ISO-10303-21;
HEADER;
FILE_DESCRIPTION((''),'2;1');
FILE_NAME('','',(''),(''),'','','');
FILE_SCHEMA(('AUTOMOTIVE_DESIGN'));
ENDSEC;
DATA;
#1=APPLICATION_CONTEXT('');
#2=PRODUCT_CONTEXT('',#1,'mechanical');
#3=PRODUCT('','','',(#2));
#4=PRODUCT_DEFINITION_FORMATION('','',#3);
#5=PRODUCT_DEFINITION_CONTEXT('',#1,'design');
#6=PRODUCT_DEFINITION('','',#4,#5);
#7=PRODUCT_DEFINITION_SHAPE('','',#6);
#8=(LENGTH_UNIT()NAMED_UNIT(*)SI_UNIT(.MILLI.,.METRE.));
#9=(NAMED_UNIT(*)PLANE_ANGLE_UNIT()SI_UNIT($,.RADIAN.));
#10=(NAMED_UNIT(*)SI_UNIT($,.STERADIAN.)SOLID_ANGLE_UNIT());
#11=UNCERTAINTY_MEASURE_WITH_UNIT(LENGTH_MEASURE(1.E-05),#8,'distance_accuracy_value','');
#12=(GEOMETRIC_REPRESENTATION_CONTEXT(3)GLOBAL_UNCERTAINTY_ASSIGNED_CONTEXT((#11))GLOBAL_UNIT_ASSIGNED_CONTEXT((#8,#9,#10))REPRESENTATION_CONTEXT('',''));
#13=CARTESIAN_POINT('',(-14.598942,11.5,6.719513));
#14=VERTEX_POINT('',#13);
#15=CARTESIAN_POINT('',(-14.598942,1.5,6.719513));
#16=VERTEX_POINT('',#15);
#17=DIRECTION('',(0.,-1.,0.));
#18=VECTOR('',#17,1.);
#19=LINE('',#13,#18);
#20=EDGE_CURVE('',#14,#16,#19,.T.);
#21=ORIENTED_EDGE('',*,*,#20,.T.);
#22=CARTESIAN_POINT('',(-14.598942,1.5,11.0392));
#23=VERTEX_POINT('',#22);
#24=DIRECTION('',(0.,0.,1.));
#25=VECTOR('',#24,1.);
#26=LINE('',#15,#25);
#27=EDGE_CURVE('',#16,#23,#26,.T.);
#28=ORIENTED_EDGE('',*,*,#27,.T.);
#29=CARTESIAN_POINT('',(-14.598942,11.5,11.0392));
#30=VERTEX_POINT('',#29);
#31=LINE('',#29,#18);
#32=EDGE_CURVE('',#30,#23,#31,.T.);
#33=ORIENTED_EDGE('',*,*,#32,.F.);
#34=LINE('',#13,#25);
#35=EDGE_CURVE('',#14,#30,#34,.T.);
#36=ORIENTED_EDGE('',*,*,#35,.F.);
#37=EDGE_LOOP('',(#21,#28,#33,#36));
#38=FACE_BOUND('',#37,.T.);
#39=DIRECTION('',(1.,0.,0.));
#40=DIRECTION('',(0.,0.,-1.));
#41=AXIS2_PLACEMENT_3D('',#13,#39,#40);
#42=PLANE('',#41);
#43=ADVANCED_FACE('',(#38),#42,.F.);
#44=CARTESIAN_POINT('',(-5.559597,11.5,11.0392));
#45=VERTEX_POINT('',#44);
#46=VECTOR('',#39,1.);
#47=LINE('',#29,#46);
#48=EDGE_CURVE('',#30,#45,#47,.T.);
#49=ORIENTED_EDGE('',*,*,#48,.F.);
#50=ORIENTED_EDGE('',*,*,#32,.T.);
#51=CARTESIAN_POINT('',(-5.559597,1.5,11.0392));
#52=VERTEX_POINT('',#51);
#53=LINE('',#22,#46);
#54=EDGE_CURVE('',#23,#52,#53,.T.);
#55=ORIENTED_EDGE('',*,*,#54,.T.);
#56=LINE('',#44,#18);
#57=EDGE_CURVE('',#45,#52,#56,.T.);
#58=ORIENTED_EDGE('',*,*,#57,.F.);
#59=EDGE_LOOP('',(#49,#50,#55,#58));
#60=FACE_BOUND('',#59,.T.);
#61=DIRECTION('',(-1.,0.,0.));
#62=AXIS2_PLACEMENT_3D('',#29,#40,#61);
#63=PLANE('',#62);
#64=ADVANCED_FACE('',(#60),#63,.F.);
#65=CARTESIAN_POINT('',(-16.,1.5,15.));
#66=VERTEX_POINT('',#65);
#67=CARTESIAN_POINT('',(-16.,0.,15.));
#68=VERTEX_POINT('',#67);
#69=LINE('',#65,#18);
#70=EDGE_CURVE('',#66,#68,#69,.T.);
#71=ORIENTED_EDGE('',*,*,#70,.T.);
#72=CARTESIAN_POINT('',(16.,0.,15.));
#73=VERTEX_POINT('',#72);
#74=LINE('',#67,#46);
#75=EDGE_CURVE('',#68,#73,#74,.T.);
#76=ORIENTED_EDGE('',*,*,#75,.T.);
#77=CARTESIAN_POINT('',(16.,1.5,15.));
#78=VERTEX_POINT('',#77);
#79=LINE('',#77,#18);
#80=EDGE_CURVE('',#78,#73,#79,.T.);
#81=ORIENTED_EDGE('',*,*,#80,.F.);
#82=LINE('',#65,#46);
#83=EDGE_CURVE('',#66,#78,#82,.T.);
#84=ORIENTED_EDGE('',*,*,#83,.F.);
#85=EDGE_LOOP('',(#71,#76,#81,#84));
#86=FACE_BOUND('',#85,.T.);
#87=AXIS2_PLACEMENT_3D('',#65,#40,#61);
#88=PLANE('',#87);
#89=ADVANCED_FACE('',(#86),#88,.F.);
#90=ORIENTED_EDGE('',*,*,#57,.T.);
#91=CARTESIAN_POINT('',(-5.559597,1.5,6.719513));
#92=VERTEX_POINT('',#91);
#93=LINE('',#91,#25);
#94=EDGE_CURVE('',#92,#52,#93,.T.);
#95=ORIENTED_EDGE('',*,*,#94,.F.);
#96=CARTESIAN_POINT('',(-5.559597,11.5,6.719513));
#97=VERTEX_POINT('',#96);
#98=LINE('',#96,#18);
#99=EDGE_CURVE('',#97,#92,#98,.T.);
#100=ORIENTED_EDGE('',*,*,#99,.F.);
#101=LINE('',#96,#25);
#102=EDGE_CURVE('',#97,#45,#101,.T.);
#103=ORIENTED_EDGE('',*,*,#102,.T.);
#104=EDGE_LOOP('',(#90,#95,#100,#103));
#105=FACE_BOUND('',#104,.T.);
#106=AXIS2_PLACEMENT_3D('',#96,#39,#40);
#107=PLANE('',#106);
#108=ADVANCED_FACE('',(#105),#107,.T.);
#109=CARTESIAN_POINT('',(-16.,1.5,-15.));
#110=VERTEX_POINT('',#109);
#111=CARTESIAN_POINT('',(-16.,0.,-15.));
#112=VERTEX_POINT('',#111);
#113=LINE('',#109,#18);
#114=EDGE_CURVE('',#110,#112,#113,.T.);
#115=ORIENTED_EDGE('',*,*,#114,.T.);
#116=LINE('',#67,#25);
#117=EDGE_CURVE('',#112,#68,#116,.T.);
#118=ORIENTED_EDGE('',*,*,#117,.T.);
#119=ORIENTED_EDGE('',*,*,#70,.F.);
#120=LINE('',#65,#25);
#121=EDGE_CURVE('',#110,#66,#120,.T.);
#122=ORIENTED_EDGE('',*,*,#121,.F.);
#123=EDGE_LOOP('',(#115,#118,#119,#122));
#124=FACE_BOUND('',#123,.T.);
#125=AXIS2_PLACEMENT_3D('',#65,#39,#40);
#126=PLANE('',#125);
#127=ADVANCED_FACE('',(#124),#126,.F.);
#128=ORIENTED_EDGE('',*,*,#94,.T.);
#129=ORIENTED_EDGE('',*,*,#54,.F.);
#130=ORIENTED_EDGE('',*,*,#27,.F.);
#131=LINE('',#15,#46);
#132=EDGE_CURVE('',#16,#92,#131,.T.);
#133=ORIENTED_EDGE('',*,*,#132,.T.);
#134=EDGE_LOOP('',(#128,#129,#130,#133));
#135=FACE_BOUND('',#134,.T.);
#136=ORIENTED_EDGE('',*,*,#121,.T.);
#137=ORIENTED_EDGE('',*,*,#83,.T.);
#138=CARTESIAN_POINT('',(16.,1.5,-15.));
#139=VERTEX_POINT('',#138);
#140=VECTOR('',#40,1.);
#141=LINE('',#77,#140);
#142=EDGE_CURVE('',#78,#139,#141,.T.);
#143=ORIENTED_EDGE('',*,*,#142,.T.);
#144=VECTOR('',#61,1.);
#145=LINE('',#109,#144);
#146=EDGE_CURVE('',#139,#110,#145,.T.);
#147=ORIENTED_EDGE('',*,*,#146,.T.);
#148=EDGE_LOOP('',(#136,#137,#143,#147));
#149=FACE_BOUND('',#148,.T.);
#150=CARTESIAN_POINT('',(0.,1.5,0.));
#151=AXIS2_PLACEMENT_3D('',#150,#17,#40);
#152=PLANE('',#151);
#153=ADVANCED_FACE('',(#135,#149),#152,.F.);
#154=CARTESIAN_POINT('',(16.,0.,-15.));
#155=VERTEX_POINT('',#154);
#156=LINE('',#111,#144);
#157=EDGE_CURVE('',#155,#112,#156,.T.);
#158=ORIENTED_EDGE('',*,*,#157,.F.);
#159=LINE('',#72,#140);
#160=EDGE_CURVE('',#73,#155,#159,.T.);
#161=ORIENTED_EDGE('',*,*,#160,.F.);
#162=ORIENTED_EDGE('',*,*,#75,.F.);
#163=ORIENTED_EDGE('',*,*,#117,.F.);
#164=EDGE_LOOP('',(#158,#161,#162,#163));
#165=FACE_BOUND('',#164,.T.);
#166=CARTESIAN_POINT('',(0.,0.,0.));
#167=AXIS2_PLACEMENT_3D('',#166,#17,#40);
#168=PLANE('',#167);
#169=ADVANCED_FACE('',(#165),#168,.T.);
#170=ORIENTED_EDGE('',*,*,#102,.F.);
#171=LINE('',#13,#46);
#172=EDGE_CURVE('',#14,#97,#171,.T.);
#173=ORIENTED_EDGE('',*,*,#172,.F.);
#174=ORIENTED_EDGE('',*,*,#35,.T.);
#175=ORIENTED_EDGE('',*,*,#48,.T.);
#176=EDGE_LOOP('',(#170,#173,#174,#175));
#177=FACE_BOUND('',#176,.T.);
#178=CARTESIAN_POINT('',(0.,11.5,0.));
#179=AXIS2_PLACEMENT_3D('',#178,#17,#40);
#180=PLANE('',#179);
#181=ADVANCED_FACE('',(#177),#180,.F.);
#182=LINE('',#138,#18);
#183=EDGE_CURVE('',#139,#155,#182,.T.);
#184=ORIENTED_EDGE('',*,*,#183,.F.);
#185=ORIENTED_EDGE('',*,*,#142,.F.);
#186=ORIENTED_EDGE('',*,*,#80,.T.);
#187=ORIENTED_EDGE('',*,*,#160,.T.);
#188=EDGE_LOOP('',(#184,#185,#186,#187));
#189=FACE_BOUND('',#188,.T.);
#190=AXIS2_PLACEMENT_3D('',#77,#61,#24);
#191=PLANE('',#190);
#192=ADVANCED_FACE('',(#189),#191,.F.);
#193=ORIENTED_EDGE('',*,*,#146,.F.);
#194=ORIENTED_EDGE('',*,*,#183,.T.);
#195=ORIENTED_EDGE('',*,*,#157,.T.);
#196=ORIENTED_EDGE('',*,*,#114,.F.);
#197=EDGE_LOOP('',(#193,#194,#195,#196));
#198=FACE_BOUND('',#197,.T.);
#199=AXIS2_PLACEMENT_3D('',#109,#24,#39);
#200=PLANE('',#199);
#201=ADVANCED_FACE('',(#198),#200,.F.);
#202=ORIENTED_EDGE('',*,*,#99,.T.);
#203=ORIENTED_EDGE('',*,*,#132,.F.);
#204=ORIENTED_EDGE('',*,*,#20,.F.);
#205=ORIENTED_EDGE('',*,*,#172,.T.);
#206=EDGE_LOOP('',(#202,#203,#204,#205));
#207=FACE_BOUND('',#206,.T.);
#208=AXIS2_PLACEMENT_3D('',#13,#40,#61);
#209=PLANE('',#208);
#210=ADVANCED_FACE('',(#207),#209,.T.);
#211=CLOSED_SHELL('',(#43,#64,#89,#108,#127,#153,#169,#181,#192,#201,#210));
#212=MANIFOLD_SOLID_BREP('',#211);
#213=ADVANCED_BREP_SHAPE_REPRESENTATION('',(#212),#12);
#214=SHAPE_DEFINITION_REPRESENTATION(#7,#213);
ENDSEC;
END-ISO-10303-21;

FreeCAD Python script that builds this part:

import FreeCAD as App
import Part
import Sketcher


def add_polygon(sketch, points):
    """Adds a closed chain of lines whose ends are joined by coincident constraints."""
    first, n = sketch.GeometryCount, len(points)
    for a, b in zip(points, points[1:] + points[:1]):
        sketch.addGeometry(Part.LineSegment(App.Vector(*a, 0), App.Vector(*b, 0)), False)
    for i in range(n):
        sketch.addConstraint(Sketcher.Constraint("Coincident", first + i, 2, first + (i + 1) % n, 1))

doc = App.newDocument("Part")
body = doc.addObject("PartDesign::Body", "Body")

# Sketch on XZ plane
sketch1 = body.newObject("Sketcher::SketchObject", "Sketch")
sketch1.AttachmentSupport = (doc.getObject("XZ_Plane"), [""])
sketch1.MapMode = "FlatFace"
add_polygon(sketch1, [(-16, -15), (-16, 15), (16, 15), (16, -15)])  # lines 0-3
sketch1.addConstraint([
    Sketcher.Constraint("Vertical", 0),
    Sketcher.Constraint("Horizontal", 1),
    Sketcher.Constraint("Vertical", 2),
    Sketcher.Constraint("Horizontal", 3),
    Sketcher.Constraint("Symmetric", 0, 2, 2, 2, -1, 1),
    Sketcher.Constraint("DistanceX", 1, 1, 1, 2, 32.0),
    Sketcher.Constraint("DistanceY", 0, 1, 0, 2, 30.0),
])
pad1 = body.newObject("PartDesign::Pad", "Pad")
pad1.Profile = sketch1
pad1.Length = 1.5
pad1.Reversed = True

# Sketch on XZ plane
sketch2 = body.newObject("Sketcher::SketchObject", "Sketch001")
sketch2.AttachmentSupport = (doc.getObject("XZ_Plane"), [""])
sketch2.MapMode = "FlatFace"
sketch2.AttachmentOffset = App.Placement(App.Vector(0, 0, -1.5), App.Rotation())
add_polygon(sketch2, [(-14.6, 6.7), (-14.6, 11), (-5.6, 11), (-5.6, 6.7)])  # lines 0-3
sketch2.addConstraint([
    Sketcher.Constraint("Vertical", 0),
    Sketcher.Constraint("Horizontal", 1),
    Sketcher.Constraint("Vertical", 2),
    Sketcher.Constraint("Horizontal", 3),
    Sketcher.Constraint("DistanceY", -1, 1, 0, 2, 11.0392),
    Sketcher.Constraint("DistanceX", 1, 1, 1, 2, 9.039345),
    Sketcher.Constraint("DistanceY", 0, 1, 0, 2, 4.319687),
    Sketcher.Constraint("DistanceX", 0, 2, -1, 1, 14.598942),
])
pad2 = body.newObject("PartDesign::Pad", "Pad001")
pad2.Profile = sketch2
pad2.Length = 10
pad2.Reversed = True

doc.recompute()
